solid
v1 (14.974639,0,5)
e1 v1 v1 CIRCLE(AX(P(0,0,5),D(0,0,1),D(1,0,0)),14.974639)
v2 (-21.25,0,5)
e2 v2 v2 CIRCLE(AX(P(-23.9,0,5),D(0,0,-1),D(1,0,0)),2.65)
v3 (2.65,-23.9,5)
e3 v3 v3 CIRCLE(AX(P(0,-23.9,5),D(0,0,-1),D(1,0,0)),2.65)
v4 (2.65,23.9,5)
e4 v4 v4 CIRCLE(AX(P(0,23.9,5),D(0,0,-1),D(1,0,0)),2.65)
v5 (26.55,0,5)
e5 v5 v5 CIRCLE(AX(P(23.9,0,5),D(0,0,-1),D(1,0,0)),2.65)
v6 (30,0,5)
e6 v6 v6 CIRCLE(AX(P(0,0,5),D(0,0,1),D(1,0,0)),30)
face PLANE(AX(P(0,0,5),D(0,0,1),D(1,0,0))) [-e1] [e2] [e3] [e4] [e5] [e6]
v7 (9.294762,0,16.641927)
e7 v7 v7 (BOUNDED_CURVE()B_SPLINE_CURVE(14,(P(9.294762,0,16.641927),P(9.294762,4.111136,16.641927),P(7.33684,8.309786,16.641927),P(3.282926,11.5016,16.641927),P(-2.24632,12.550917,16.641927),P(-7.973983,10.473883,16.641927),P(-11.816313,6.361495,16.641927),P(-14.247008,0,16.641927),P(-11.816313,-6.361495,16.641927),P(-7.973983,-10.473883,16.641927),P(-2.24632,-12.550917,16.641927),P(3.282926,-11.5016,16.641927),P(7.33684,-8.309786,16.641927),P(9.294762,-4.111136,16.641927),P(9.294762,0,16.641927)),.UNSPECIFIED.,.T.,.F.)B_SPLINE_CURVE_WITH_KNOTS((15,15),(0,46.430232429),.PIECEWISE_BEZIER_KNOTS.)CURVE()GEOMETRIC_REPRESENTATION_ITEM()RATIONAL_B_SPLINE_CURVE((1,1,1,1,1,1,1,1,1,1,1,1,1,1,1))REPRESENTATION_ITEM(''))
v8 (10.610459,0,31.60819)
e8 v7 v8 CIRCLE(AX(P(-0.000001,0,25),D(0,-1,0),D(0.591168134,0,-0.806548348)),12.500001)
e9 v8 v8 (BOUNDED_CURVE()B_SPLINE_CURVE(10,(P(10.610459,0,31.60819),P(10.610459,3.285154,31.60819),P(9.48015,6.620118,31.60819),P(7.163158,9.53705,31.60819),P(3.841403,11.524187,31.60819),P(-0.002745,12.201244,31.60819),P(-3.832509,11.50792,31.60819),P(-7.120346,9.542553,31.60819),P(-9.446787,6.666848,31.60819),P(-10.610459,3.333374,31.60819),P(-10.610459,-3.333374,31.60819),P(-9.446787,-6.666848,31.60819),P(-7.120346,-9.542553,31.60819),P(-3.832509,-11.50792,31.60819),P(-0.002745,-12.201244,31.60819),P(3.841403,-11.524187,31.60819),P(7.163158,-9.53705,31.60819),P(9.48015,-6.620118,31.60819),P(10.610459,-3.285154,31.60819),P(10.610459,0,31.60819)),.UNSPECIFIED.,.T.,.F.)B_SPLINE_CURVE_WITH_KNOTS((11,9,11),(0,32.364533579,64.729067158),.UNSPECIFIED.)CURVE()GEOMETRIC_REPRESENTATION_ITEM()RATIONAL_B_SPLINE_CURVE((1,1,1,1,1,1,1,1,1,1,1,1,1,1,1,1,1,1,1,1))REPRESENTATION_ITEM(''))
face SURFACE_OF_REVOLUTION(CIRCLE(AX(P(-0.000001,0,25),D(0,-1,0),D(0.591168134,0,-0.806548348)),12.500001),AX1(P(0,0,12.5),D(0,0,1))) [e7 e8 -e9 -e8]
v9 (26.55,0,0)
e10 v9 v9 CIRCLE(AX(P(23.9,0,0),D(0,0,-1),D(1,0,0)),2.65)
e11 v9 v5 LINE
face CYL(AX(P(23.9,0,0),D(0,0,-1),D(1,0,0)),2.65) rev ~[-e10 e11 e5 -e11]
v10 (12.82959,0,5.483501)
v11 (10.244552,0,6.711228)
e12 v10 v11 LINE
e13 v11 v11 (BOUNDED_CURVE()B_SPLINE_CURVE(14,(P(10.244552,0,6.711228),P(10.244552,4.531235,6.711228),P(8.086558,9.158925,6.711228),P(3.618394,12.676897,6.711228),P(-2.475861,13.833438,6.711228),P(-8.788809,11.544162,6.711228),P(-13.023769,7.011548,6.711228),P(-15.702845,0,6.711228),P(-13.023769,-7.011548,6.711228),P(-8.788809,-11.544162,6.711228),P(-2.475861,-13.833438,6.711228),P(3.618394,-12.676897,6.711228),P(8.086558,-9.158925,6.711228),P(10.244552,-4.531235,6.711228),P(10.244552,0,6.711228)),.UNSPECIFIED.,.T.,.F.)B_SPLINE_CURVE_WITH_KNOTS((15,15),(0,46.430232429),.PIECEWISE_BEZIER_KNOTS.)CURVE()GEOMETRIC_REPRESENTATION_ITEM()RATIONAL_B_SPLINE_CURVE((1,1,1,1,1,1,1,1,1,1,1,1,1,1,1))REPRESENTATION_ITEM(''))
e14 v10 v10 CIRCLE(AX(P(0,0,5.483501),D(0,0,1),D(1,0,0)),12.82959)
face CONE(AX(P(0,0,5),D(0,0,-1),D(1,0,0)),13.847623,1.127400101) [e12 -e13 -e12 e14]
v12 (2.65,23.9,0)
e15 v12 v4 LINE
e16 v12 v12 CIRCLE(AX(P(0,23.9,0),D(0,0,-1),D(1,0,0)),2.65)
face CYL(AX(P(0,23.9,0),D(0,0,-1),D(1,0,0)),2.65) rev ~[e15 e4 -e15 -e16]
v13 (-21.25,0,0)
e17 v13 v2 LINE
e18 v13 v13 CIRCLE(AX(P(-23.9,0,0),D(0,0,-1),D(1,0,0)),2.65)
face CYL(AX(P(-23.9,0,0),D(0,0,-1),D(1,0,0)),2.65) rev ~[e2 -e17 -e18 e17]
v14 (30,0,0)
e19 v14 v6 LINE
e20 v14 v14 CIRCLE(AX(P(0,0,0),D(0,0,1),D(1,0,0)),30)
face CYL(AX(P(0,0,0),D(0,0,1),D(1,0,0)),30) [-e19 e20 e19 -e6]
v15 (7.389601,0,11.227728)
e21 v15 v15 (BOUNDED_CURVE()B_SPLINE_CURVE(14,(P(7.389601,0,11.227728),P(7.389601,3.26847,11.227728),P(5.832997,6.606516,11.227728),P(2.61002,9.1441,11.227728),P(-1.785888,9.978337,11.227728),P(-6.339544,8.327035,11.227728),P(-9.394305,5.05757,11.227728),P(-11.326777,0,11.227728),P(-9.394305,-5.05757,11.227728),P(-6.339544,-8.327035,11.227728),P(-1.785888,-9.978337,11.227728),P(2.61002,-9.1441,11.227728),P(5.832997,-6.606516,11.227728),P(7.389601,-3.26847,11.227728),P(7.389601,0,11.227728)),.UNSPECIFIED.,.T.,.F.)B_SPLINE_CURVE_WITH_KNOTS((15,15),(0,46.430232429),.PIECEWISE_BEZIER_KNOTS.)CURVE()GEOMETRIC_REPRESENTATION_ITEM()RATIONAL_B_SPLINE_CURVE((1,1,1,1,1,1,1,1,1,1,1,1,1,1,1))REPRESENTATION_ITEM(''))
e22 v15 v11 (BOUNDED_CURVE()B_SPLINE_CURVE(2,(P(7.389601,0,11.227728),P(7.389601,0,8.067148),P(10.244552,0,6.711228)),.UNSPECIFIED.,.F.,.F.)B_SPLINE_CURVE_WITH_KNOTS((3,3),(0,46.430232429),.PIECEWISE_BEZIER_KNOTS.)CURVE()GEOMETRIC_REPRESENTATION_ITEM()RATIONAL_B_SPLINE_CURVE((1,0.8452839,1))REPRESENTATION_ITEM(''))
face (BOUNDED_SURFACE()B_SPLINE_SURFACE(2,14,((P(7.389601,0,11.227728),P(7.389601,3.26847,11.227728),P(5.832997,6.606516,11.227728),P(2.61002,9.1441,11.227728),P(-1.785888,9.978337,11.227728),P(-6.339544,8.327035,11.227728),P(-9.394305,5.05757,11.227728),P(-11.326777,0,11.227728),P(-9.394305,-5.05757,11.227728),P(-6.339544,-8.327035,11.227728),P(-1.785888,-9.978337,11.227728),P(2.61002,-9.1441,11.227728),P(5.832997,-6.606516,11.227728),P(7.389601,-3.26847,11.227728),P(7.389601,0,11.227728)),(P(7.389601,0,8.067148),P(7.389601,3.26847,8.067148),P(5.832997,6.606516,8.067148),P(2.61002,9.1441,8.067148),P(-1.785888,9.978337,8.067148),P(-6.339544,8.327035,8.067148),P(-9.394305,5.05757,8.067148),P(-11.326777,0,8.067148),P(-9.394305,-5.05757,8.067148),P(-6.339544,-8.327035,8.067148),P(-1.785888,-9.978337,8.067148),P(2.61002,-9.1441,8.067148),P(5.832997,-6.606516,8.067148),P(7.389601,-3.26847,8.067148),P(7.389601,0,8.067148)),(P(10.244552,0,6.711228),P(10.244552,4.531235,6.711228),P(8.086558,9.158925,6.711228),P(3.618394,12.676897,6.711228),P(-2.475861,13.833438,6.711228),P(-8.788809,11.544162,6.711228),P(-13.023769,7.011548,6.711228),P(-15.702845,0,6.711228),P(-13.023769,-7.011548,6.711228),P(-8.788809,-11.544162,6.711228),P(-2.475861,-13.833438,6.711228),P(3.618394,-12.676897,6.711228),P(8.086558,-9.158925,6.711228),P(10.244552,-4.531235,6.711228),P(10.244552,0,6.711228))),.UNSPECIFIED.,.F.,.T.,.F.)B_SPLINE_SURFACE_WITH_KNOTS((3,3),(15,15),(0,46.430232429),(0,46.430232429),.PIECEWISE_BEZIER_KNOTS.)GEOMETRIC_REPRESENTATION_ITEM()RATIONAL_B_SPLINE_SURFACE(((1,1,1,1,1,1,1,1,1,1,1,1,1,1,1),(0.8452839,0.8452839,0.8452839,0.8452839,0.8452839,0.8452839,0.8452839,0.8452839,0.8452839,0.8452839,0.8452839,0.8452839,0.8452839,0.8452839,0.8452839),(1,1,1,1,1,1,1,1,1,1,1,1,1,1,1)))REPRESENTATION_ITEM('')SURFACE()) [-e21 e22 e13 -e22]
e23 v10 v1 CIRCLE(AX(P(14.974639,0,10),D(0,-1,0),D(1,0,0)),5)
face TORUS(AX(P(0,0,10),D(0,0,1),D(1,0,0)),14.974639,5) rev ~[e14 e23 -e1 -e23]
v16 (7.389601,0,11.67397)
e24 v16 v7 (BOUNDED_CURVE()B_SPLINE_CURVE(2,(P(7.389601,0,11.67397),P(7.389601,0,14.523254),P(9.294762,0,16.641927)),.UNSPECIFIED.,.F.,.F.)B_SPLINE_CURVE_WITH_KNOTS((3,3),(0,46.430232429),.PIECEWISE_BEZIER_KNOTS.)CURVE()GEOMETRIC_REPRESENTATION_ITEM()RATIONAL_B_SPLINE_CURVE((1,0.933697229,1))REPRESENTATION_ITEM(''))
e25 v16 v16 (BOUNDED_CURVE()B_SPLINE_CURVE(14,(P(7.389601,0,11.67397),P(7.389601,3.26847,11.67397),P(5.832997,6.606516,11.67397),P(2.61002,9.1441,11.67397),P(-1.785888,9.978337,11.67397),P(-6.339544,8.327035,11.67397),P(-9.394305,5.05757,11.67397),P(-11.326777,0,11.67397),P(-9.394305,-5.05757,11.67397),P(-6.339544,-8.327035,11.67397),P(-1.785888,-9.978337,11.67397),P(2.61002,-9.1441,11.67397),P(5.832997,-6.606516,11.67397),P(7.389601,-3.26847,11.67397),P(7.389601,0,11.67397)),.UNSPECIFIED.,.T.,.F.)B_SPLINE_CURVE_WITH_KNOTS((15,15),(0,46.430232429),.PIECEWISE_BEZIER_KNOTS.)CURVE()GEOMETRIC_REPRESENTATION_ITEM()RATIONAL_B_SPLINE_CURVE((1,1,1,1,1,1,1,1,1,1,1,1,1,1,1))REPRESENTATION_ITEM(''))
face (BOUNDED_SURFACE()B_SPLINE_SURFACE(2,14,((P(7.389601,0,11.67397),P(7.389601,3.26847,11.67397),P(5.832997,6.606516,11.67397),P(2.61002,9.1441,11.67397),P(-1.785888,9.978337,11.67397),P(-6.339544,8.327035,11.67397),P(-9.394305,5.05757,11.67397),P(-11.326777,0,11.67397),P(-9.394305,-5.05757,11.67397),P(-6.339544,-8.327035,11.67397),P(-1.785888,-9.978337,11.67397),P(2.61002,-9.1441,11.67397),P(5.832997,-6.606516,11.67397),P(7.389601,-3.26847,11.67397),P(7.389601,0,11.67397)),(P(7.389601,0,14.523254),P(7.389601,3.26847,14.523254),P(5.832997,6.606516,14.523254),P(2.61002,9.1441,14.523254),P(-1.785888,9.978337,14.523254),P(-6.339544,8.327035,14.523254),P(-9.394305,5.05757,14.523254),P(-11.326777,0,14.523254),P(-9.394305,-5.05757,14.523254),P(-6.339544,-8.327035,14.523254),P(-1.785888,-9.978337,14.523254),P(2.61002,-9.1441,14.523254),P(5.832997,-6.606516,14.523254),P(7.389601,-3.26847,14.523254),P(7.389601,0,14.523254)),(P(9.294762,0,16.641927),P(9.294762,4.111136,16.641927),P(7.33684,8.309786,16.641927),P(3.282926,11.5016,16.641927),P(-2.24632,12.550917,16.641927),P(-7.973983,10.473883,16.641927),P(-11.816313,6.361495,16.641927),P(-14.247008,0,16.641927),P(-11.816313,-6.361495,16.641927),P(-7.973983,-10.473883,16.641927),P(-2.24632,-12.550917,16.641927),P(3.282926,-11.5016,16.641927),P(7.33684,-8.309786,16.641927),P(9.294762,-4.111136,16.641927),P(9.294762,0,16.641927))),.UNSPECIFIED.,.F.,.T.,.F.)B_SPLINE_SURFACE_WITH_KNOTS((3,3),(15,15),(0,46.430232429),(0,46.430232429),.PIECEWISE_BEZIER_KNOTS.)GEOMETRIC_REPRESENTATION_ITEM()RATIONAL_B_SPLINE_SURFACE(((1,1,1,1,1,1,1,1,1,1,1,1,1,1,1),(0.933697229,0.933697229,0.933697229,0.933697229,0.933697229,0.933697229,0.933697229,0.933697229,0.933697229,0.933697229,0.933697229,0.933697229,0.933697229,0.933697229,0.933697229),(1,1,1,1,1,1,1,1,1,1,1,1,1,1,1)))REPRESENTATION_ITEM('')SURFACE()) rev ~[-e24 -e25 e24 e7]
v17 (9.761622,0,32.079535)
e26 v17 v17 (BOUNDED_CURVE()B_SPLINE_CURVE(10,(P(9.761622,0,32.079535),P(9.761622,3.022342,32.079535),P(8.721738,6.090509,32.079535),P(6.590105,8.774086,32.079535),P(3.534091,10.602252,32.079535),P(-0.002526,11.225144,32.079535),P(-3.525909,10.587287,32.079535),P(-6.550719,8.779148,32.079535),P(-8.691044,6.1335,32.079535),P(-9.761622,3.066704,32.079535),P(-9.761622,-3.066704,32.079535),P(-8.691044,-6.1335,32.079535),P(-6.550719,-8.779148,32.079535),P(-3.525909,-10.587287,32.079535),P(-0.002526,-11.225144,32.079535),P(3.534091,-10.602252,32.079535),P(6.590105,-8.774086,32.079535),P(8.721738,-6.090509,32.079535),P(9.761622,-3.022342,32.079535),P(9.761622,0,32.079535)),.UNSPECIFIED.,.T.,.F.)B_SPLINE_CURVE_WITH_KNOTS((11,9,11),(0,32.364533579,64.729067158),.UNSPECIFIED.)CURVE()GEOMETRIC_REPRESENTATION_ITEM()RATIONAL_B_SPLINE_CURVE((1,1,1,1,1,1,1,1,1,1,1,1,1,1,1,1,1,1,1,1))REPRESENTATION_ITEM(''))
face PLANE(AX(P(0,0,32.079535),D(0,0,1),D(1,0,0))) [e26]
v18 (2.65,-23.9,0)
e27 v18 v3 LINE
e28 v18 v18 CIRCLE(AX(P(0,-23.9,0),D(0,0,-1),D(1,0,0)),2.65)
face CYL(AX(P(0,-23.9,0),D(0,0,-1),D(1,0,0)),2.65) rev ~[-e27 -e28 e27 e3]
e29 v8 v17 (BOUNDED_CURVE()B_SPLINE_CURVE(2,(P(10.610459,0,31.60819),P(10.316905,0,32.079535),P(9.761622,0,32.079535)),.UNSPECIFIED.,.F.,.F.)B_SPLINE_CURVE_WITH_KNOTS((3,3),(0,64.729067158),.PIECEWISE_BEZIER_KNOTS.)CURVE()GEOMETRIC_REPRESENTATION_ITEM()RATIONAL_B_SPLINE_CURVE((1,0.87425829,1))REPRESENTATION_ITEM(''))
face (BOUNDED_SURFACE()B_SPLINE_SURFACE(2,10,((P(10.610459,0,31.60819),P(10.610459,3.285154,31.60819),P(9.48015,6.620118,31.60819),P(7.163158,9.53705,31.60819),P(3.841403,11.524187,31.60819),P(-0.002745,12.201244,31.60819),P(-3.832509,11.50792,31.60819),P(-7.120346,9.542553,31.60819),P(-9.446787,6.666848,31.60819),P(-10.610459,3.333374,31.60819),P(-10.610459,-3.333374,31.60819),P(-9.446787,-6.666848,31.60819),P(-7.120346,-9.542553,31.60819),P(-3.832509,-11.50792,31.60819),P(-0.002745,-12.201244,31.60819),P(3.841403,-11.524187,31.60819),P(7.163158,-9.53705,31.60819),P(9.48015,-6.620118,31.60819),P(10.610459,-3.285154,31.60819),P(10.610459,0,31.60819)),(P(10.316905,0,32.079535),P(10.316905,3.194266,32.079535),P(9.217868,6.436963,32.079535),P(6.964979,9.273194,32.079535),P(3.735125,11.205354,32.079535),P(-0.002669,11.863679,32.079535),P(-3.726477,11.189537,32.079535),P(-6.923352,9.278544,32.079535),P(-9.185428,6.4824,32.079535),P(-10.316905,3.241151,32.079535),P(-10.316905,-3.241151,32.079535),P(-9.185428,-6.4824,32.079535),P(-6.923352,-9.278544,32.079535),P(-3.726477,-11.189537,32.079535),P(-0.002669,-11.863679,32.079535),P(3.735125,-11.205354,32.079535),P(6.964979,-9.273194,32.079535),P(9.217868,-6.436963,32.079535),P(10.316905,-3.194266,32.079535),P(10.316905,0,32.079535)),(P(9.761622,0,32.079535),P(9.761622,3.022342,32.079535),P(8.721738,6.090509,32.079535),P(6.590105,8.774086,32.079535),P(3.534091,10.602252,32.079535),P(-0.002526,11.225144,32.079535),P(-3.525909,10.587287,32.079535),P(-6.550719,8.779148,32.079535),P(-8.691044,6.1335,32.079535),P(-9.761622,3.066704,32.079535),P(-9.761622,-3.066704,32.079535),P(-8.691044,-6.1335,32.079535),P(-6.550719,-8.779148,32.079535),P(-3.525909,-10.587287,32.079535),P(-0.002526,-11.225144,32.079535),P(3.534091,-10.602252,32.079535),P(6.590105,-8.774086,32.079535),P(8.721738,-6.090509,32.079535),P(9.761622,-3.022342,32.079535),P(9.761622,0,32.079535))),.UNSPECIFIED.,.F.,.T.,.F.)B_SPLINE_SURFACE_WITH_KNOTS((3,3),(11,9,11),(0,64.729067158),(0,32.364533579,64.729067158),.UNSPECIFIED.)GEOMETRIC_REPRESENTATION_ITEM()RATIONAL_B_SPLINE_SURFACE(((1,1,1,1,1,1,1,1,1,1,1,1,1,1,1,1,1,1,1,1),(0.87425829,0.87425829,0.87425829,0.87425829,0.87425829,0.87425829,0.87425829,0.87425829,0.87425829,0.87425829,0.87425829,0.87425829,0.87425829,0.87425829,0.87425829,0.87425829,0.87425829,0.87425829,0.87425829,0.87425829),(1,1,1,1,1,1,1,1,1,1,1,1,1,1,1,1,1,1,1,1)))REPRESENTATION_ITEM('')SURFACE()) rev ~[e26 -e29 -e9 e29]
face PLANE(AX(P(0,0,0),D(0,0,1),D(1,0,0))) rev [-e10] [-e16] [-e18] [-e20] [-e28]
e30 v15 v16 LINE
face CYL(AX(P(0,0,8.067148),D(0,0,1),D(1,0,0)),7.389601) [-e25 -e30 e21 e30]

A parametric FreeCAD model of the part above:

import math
import FreeCAD as App
import Part
import Sketcher
Q = App.Units.Quantity


def edges_at(feature, points):
    """Names of the edges that pass closest to the given points."""
    edges = feature.Shape.Edges
    near = lambda p: min(range(len(edges)), key=lambda i: edges[i].distToShape(Part.Vertex(*p))[0])
    return sorted({f"Edge{near(p) + 1}" for p in points})

doc = App.newDocument("Part")
body = doc.addObject("PartDesign::Body", "Body")

sketch1 = body.newObject("Sketcher::SketchObject", "Sketch")
sketch1.AttachmentSupport = (doc.getObject("XZ_Plane"), [""])
sketch1.MapMode = "FlatFace"
sketch1.addGeometry([
    Part.LineSegment(App.Vector(0, 0, 0), App.Vector(30, 0, 0)),
    Part.LineSegment(App.Vector(30, 0, 0), App.Vector(30, 5, 0)),
    Part.LineSegment(App.Vector(30, 5, 0), App.Vector(14, 5, 0)),
    Part.LineSegment(App.Vector(14, 5, 0), App.Vector(7, 8, 0)),
    Part.LineSegment(App.Vector(7, 8, 0), App.Vector(7, 15, 0)),
    Part.ArcOfCircle(Part.Circle(App.Vector(0, 25, 0), App.Vector(0, 0, 1), 13), math.radians(-54), math.radians(34)),
    Part.LineSegment(App.Vector(10, 32, 0), App.Vector(0, 32, 0)),
    Part.LineSegment(App.Vector(0, 32, 0), App.Vector(0, 0, 0)),
], False)
sketch1.addConstraint([
    Sketcher.Constraint("Coincident", 0, 2, 1, 1),
    Sketcher.Constraint("Coincident", 1, 2, 2, 1),
    Sketcher.Constraint("Coincident", 2, 2, 3, 1),
    Sketcher.Constraint("Coincident", 3, 2, 4, 1),
    Sketcher.Constraint("Coincident", 4, 2, 5, 1),
    Sketcher.Constraint("Coincident", 5, 2, 6, 1),
    Sketcher.Constraint("Coincident", 6, 2, 7, 1),
    Sketcher.Constraint("Coincident", 7, 2, 0, 1),
    Sketcher.Constraint("Horizontal", 0),
    Sketcher.Constraint("Vertical", 1),
    Sketcher.Constraint("Horizontal", 2),
    Sketcher.Constraint("Vertical", 4),
    Sketcher.Constraint("Horizontal", 6),
    Sketcher.Constraint("Vertical", 7),
    Sketcher.Constraint("Coincident", 7, 2, -1, 1),
    Sketcher.Constraint("PointOnObject", 5, 3, -2),
    Sketcher.Constraint("Radius", 5, Q("12.500001 mm")),
    Sketcher.Constraint("DistanceX", 0, 1, 0, 2, Q("30 mm")),
    Sketcher.Constraint("DistanceY", 1, 1, 1, 2, Q("5 mm")),
    Sketcher.Constraint("DistanceY", -1, 1, 5, 3, Q("25 mm")),
    Sketcher.Constraint("DistanceX", 6, 2, 6, 1, Q("10.301951 mm")),
    Sketcher.Constraint("DistanceX", -1, 1, 3, 2, Q("7.389601 mm")),
    Sketcher.Constraint("DistanceX", 2, 2, 2, 1, Q("16.152377 mm")),
    Sketcher.Constraint("DistanceY", 4, 1, 4, 2, Q("6.850997 mm")),
])
revolution = body.newObject("PartDesign::Revolution", "Revolution")
revolution.Profile = sketch1
revolution.ReferenceAxis = (sketch1, ["V_Axis"])
revolution.Angle = 360

sketch2 = body.newObject("Sketcher::SketchObject", "Sketch001")
sketch2.AttachmentSupport = (doc.getObject("XY_Plane"), [""])
sketch2.MapMode = "FlatFace"
sketch2.addGeometry([
    Part.Circle(App.Vector(0, -23.9, 0), App.Vector(0, 0, 1), 2.6),
    Part.Circle(App.Vector(23.9, 0, 0), App.Vector(0, 0, 1), 2.6),
    Part.Circle(App.Vector(0, 23.9, 0), App.Vector(0, 0, 1), 2.6),
    Part.Circle(App.Vector(-23.9, 0, 0), App.Vector(0, 0, 1), 2.6),
], False)
sketch2.addConstraint([
    Sketcher.Constraint("Equal", 0, 1),
    Sketcher.Constraint("Equal", 1, 2),
    Sketcher.Constraint("Equal", 2, 3),
    Sketcher.Constraint("Symmetric", 0, 3, 2, 3, -1, 1),
    Sketcher.Constraint("Symmetric", 1, 3, 3, 3, -1, 1),
    Sketcher.Constraint("PointOnObject", 0, 3, -2),
    Sketcher.Constraint("PointOnObject", 1, 3, -1),
    Sketcher.Constraint("Diameter", 0, Q("5.3 mm")),
    Sketcher.Constraint("DistanceY", 0, 3, -1, 1, Q("23.9 mm")),
    Sketcher.Constraint("DistanceX", -1, 1, 1, 3, Q("23.9 mm")),
])
pocket1 = body.newObject("PartDesign::Pocket", "Pocket")
pocket1.Profile = sketch2
pocket1.Length = 25
pocket1.Reversed = True
doc.recompute()

fillet = body.newObject("PartDesign::Fillet", "Fillet")
fillet.Base = (pocket1, edges_at(pocket1, [(-7.39, 0, 14.918)]))
fillet.Radius = 7.429877
doc.recompute()

fillet2 = body.newObject("PartDesign::Fillet", "Fillet001")
fillet2.Base = (fillet, edges_at(fillet, [(-7.39, 0, 8.067), (-13.848, 0, 5)]))
fillet2.Radius = 5
doc.recompute()

fillet3 = body.newObject("PartDesign::Fillet", "Fillet002")
fillet3.Base = (fillet2, edges_at(fillet2, [(-10.302, 0, 32.08)]))
fillet3.Radius = 1

doc.recompute()
